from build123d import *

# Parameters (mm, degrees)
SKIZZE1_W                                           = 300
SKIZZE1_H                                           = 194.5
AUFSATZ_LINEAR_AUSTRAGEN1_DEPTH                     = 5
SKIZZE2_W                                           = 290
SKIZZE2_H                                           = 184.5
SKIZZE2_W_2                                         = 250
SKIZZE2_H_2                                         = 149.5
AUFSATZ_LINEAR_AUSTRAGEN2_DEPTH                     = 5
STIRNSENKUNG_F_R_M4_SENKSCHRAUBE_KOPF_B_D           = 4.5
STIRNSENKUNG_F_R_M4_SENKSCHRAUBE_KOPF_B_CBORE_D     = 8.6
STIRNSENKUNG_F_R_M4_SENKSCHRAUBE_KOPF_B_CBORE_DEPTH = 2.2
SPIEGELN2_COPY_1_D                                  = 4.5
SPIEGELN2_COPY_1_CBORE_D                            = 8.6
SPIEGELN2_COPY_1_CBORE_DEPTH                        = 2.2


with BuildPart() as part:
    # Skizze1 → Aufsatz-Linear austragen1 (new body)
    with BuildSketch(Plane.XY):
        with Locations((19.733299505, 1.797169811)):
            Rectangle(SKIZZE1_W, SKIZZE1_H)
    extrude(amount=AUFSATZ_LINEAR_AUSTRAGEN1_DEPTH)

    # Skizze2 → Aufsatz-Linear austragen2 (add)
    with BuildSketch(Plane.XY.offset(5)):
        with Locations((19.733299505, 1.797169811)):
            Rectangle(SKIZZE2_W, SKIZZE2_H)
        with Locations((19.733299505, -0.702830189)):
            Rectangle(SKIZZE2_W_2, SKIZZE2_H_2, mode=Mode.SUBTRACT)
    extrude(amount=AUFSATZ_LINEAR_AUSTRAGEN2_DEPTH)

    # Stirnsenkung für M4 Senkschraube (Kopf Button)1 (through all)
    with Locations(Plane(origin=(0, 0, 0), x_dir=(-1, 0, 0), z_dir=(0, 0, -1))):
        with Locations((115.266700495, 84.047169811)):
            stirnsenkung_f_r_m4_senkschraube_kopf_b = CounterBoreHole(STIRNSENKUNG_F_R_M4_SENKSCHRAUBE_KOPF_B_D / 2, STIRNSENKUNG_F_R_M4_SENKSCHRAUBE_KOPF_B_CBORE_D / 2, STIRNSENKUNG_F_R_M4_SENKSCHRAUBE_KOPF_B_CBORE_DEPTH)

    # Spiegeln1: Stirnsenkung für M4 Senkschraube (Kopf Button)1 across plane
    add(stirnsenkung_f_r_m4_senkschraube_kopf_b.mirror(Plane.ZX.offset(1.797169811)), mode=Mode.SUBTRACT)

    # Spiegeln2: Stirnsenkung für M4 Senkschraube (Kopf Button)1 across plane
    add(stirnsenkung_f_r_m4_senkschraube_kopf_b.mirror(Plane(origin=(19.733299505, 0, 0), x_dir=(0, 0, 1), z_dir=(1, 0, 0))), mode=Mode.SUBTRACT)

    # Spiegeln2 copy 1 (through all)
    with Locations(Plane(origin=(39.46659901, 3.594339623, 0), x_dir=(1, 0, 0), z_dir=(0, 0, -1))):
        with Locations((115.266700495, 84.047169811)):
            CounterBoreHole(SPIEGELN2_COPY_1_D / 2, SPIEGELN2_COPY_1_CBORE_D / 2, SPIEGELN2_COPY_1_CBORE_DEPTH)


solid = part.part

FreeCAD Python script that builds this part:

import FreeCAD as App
import Part
import Sketcher
from FreeCAD import Vector

doc = App.newDocument("Part")
body = doc.addObject("PartDesign::Body", "Body")

sketch1 = doc.addObject("Sketcher::SketchObject", "Sketch")
body.addObject(sketch1)
sketch1.AttachmentSupport = (doc.XY_Plane, [""])
sketch1.MapMode = "FlatFace"
sketch1.addGeometry(Part.LineSegment(Vector(-130, 99, 0), Vector(-130, -95, 0)), False)
sketch1.addGeometry(Part.LineSegment(Vector(-130, -95, 0), Vector(170, -95, 0)), False)
sketch1.addGeometry(Part.LineSegment(Vector(170, -95, 0), Vector(170, 99, 0)), False)
sketch1.addGeometry(Part.LineSegment(Vector(170, 99, 0), Vector(-130, 99, 0)), False)
sketch1.addConstraint(Sketcher.Constraint("Coincident", 0, 2, 1, 1))
sketch1.addConstraint(Sketcher.Constraint("Coincident", 1, 2, 2, 1))
sketch1.addConstraint(Sketcher.Constraint("Coincident", 2, 2, 3, 1))
sketch1.addConstraint(Sketcher.Constraint("Coincident", 3, 2, 0, 1))
sketch1.addConstraint(Sketcher.Constraint("Vertical", 0))
sketch1.addConstraint(Sketcher.Constraint("Horizontal", 1))
sketch1.addConstraint(Sketcher.Constraint("Vertical", 2))
sketch1.addConstraint(Sketcher.Constraint("Horizontal", 3))
sketch1.addConstraint(Sketcher.Constraint("DistanceX", 1, 1, 1, 2, 300.0))
sketch1.addConstraint(Sketcher.Constraint("DistanceY", 0, 2, 0, 1, 194.5))
sketch1.addConstraint(Sketcher.Constraint("DistanceX", 0, 2, -1, 1, 130.2667))
sketch1.addConstraint(Sketcher.Constraint("DistanceY", 0, 2, -1, 1, 95.45283))
pad1 = doc.addObject("PartDesign::Pad", "Pad")
body.addObject(pad1)
pad1.Profile = sketch1
pad1.Length = 5

sketch2 = doc.addObject("Sketcher::SketchObject", "Sketch001")
body.addObject(sketch2)
sketch2.AttachmentSupport = (doc.XY_Plane, [""])
sketch2.MapMode = "FlatFace"
sketch2.AttachmentOffset = App.Placement(Vector(0, 0, 5), App.Rotation())
sketch2.addGeometry(Part.LineSegment(Vector(-125, 94, 0), Vector(-125, -90, 0)), False)
sketch2.addGeometry(Part.LineSegment(Vector(-125, -90, 0), Vector(165, -90, 0)), False)
sketch2.addGeometry(Part.LineSegment(Vector(165, -90, 0), Vector(165, 94, 0)), False)
sketch2.addGeometry(Part.LineSegment(Vector(165, 94, 0), Vector(-125, 94, 0)), False)
sketch2.addGeometry(Part.LineSegment(Vector(145, -75, 0), Vector(-105, -75, 0)), False)
sketch2.addGeometry(Part.LineSegment(Vector(-105, -75, 0), Vector(-105, 74, 0)), False)
sketch2.addGeometry(Part.LineSegment(Vector(-105, 74, 0), Vector(145, 74, 0)), False)
sketch2.addGeometry(Part.LineSegment(Vector(145, 74, 0), Vector(145, -75, 0)), False)
sketch2.addConstraint(Sketcher.Constraint("Coincident", 0, 2, 1, 1))
sketch2.addConstraint(Sketcher.Constraint("Coincident", 1, 2, 2, 1))
sketch2.addConstraint(Sketcher.Constraint("Coincident", 2, 2, 3, 1))
sketch2.addConstraint(Sketcher.Constraint("Coincident", 3, 2, 0, 1))
sketch2.addConstraint(Sketcher.Constraint("Coincident", 4, 2, 5, 1))
sketch2.addConstraint(Sketcher.Constraint("Coincident", 5, 2, 6, 1))
sketch2.addConstraint(Sketcher.Constraint("Coincident", 6, 2, 7, 1))
sketch2.addConstraint(Sketcher.Constraint("Coincident", 7, 2, 4, 1))
sketch2.addConstraint(Sketcher.Constraint("Vertical", 0))
sketch2.addConstraint(Sketcher.Constraint("Horizontal", 1))
sketch2.addConstraint(Sketcher.Constraint("Vertical", 2))
sketch2.addConstraint(Sketcher.Constraint("Horizontal", 3))
sketch2.addConstraint(Sketcher.Constraint("Horizontal", 4))
sketch2.addConstraint(Sketcher.Constraint("Vertical", 5))
sketch2.addConstraint(Sketcher.Constraint("Horizontal", 6))
sketch2.addConstraint(Sketcher.Constraint("Vertical", 7))
sketch2.addConstraint(Sketcher.Constraint("DistanceX", 1, 1, 1, 2, 290.0))
sketch2.addConstraint(Sketcher.Constraint("DistanceX", 4, 2, 4, 1, 250.0))
sketch2.addConstraint(Sketcher.Constraint("DistanceY", 0, 2, 0, 1, 184.5))
sketch2.addConstraint(Sketcher.Constraint("DistanceY", 5, 1, 5, 2, 149.5))
sketch2.addConstraint(Sketcher.Constraint("DistanceX", 0, 2, 4, 2, 20.0))
sketch2.addConstraint(Sketcher.Constraint("DistanceY", 0, 2, 4, 2, 15.0))
sketch2.addConstraint(Sketcher.Constraint("DistanceX", 0, 2, -1, 1, 125.2667))
sketch2.addConstraint(Sketcher.Constraint("DistanceY", 0, 2, -1, 1, 90.45283))
pad2 = doc.addObject("PartDesign::Pad", "Pad001")
body.addObject(pad2)
pad2.Profile = sketch2
pad2.Length = 5

sketch3 = doc.addObject("Sketcher::SketchObject", "Sketch002")
body.addObject(sketch3)
sketch3.AttachmentSupport = (doc.XY_Plane, [""])
sketch3.MapMode = "FlatFace"
sketch3.addGeometry(Part.Circle(Vector(-115.3, 84, 0), Vector(0, 0, 1), 2.2), False)
sketch3.addConstraint(Sketcher.Constraint("Diameter", 0, 4.5))
sketch3.addConstraint(Sketcher.Constraint("DistanceX", 0, 3, -1, 1, 115.2667))
sketch3.addConstraint(Sketcher.Constraint("DistanceY", -1, 1, 0, 3, 84.04717))
doc.recompute()
hole = doc.addObject("PartDesign::Hole", "Hole")
body.addObject(hole)
hole.Profile = sketch3
hole.ThreadType = "None"
hole.Diameter = 4.5
hole.DepthType = "ThroughAll"
hole.HoleCutType = "Counterbore"
hole.HoleCutDiameter = 8.6
hole.HoleCutDepth = 2.2
hole.Reversed = True
doc.recompute()

datumplane = doc.addObject("PartDesign::Plane", "DatumPlane")
body.addObject(datumplane)
datumplane.AttachmentSupport = (doc.XZ_Plane, [""])
datumplane.MapMode = "FlatFace"
datumplane.AttachmentOffset = App.Placement(Vector(0, 0, -1.79717), App.Rotation())
mirrored = doc.addObject("PartDesign::Mirrored", "Mirrored")
body.addObject(mirrored)
mirrored.Originals = [hole]
mirrored.MirrorPlane = (datumplane, [""])
body.Tip = mirrored
doc.recompute()

datumplane2 = doc.addObject("PartDesign::Plane", "DatumPlane001")
body.addObject(datumplane2)
datumplane2.AttachmentSupport = (doc.YZ_Plane, [""])
datumplane2.MapMode = "FlatFace"
datumplane2.AttachmentOffset = App.Placement(Vector(0, 0, 19.7333), App.Rotation())
mirrored2 = doc.addObject("PartDesign::Mirrored", "Mirrored001")
body.addObject(mirrored2)
mirrored2.Originals = [hole]
mirrored2.MirrorPlane = (datumplane2, [""])
body.Tip = mirrored2

sketch4 = doc.addObject("Sketcher::SketchObject", "Sketch003")
body.addObject(sketch4)
sketch4.AttachmentSupport = (doc.XY_Plane, [""])
sketch4.MapMode = "FlatFace"
sketch4.addGeometry(Part.Circle(Vector(154.7, -80.5, 0), Vector(0, 0, 1), 2.2), False)
sketch4.addConstraint(Sketcher.Constraint("Diameter", 0, 4.5))
sketch4.addConstraint(Sketcher.Constraint("DistanceX", -1, 1, 0, 3, 154.7333))
sketch4.addConstraint(Sketcher.Constraint("DistanceY", 0, 3, -1, 1, 80.45283))
doc.recompute()
hole2 = doc.addObject("PartDesign::Hole", "Hole001")
body.addObject(hole2)
hole2.Profile = sketch4
hole2.ThreadType = "None"
hole2.Diameter = 4.5
hole2.DepthType = "ThroughAll"
hole2.HoleCutType = "Counterbore"
hole2.HoleCutDiameter = 8.6
hole2.HoleCutDepth = 2.2
hole2.Reversed = True

doc.recompute()
